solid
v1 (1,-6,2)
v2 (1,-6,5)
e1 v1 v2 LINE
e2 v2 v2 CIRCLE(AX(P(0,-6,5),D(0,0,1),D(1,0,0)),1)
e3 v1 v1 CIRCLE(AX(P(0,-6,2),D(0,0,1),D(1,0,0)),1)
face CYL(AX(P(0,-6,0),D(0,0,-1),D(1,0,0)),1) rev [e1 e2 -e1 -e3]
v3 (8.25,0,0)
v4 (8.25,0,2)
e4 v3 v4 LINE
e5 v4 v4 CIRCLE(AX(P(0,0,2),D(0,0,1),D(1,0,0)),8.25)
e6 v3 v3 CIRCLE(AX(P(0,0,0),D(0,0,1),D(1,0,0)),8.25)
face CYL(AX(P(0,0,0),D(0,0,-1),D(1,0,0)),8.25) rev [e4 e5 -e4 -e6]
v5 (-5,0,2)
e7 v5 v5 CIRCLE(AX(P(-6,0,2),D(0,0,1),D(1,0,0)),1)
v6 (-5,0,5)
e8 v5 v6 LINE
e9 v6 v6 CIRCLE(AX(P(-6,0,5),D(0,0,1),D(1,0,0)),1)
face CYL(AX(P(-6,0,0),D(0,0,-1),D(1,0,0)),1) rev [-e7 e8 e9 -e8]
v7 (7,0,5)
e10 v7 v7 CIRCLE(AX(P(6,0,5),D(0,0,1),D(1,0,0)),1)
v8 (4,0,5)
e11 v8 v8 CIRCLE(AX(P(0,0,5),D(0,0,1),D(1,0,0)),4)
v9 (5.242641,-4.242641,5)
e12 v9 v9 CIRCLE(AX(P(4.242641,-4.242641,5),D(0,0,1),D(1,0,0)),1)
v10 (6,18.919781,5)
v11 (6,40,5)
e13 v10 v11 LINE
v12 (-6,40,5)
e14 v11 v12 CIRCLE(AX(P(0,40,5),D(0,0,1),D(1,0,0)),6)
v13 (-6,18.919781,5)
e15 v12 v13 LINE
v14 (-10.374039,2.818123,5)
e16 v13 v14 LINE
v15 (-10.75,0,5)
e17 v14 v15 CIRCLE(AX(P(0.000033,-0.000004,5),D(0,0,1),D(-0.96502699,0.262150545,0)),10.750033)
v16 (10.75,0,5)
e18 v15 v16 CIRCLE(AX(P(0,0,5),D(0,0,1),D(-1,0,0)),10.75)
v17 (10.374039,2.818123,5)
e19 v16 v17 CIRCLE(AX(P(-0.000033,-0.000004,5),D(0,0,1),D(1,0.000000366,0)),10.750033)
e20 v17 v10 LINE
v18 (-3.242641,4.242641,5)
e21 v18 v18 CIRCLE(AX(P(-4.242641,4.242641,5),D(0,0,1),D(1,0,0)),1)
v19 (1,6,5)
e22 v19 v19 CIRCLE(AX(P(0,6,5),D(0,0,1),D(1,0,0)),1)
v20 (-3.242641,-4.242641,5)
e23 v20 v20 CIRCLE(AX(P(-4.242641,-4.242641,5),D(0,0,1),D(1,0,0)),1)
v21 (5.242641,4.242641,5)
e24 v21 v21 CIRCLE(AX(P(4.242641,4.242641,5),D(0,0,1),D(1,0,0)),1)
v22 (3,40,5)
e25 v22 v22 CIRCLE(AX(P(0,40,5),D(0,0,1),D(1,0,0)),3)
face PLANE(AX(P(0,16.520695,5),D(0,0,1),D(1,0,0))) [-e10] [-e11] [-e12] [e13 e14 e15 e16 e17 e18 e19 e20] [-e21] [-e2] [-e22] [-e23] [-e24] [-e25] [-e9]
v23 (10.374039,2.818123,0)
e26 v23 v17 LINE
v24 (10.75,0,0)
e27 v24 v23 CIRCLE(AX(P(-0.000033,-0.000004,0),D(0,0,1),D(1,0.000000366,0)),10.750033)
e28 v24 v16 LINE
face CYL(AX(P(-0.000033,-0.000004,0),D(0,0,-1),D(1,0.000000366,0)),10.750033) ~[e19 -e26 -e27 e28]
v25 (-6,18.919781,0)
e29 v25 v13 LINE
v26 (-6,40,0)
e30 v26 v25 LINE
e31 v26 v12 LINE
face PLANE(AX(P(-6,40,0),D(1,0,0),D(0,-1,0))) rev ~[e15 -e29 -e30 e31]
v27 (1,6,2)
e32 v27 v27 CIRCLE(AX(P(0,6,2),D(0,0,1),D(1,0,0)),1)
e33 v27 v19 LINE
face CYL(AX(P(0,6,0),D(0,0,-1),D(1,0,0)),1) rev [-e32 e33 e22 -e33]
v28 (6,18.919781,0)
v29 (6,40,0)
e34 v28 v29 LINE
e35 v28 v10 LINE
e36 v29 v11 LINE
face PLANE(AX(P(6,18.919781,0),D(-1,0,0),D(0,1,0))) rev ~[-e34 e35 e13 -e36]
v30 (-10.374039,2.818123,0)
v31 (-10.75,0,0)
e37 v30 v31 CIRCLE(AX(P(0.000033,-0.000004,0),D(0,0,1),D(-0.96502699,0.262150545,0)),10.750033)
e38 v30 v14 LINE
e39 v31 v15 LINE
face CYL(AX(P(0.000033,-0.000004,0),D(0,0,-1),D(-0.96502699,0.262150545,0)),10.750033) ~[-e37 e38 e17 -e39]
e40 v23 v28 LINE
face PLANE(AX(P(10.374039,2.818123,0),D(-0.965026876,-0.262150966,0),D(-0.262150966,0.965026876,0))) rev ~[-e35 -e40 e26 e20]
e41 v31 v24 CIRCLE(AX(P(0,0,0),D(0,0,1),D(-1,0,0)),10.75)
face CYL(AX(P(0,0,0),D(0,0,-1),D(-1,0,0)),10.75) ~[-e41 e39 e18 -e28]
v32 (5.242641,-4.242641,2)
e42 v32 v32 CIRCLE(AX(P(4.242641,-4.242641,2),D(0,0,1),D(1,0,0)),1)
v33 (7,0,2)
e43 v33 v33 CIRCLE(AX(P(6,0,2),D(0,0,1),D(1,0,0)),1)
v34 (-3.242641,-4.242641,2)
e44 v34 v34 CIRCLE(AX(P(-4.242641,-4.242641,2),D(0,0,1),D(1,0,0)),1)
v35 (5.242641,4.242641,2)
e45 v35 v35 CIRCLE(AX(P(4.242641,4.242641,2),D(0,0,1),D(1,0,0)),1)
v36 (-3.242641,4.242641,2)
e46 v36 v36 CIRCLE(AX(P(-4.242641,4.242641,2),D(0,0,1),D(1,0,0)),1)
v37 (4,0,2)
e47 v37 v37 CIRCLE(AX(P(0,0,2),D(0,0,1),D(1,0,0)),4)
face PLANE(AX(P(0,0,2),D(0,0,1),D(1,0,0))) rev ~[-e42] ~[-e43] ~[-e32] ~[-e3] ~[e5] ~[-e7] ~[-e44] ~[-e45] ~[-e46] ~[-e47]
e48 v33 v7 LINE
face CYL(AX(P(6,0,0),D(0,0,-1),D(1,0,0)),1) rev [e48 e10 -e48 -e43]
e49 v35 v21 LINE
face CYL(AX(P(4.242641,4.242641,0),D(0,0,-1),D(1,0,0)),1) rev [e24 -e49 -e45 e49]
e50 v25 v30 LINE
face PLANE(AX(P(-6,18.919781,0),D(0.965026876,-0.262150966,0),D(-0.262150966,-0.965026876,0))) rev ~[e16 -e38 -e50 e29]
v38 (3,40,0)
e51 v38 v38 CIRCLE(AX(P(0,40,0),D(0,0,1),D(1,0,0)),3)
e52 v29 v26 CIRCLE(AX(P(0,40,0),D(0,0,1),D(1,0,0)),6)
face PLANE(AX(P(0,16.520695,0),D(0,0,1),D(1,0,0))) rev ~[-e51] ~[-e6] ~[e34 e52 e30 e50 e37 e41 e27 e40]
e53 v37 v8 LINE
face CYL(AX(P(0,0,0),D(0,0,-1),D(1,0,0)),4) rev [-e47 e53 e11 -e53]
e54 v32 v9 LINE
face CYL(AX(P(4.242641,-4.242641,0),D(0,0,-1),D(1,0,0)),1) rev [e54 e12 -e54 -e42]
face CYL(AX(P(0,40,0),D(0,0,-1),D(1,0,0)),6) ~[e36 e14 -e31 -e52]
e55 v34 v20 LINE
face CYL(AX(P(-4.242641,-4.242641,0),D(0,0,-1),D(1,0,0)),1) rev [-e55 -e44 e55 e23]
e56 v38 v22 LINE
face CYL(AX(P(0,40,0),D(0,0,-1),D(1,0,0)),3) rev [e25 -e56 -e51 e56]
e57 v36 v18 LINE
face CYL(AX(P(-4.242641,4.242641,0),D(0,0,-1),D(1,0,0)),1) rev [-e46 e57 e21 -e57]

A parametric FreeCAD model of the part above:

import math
import FreeCAD as App
import Part
import Sketcher

doc = App.newDocument("Part")
body = doc.addObject("PartDesign::Body", "Body")

# Sketch on XY plane
sketch1 = body.newObject("Sketcher::SketchObject", "Sketch")
sketch1.AttachmentSupport = (doc.getObject("XY_Plane"), [""])
sketch1.MapMode = "FlatFace"
sketch1.addGeometry(Part.LineSegment(App.Vector(-6, 40, 0), App.Vector(-6, 18.919781, 0)), False)
sketch1.addGeometry(Part.LineSegment(App.Vector(-6, 18.919781, 0), App.Vector(-10.374039, 2.818123, 0)), False)
sketch1.addGeometry(Part.ArcOfCircle(Part.Circle(App.Vector(0.000033, -0.000004, 0), App.Vector(0, 0, 1), 10.750033), math.radians(164.802294), math.radians(179.999979)), False)
sketch1.addGeometry(Part.ArcOfCircle(Part.Circle(App.Vector(0, 0, 0), App.Vector(0, 0, 1), 10.75), math.radians(180), math.radians(360)), False)
sketch1.addGeometry(Part.ArcOfCircle(Part.Circle(App.Vector(-0.000033, -0.000004, 0), App.Vector(0, 0, 1), 10.750033), math.radians(0.000021), math.radians(15.197706)), False)
sketch1.addGeometry(Part.LineSegment(App.Vector(10.374039, 2.818123, 0), App.Vector(6, 18.919781, 0)), False)
sketch1.addGeometry(Part.LineSegment(App.Vector(6, 18.919781, 0), App.Vector(6, 40, 0)), False)
sketch1.addGeometry(Part.ArcOfCircle(Part.Circle(App.Vector(0, 40, 0), App.Vector(0, 0, 1), 6), math.radians(0), math.radians(180)), False)
sketch1.addGeometry(Part.Circle(App.Vector(-4.242641, -4.242641, 0), App.Vector(0, 0, 1), 1), False)
sketch1.addGeometry(Part.Circle(App.Vector(-6, 0, 0), App.Vector(0, 0, 1), 1), False)
sketch1.addGeometry(Part.Circle(App.Vector(-4.242641, 4.242641, 0), App.Vector(0, 0, 1), 1), False)
sketch1.addGeometry(Part.Circle(App.Vector(0, -6, 0), App.Vector(0, 0, 1), 1), False)
sketch1.addGeometry(Part.Circle(App.Vector(0, 0, 0), App.Vector(0, 0, 1), 4), False)
sketch1.addGeometry(Part.Circle(App.Vector(4.242641, -4.242641, 0), App.Vector(0, 0, 1), 1), False)
sketch1.addGeometry(Part.Circle(App.Vector(4.242641, 4.242641, 0), App.Vector(0, 0, 1), 1), False)
sketch1.addGeometry(Part.Circle(App.Vector(6, 0, 0), App.Vector(0, 0, 1), 1), False)
sketch1.addGeometry(Part.Circle(App.Vector(0, 6, 0), App.Vector(0, 0, 1), 1), False)
sketch1.addGeometry(Part.Circle(App.Vector(0, 40, 0), App.Vector(0, 0, 1), 3), False)
sketch1.addConstraint(Sketcher.Constraint("Coincident", 0, 2, 1, 1))
sketch1.addConstraint(Sketcher.Constraint("Tangent", 1, 2, 2, 1))
sketch1.addConstraint(Sketcher.Constraint("Tangent", 2, 2, 3, 1))
sketch1.addConstraint(Sketcher.Constraint("Tangent", 3, 2, 4, 1))
sketch1.addConstraint(Sketcher.Constraint("Tangent", 4, 2, 5, 1))
sketch1.addConstraint(Sketcher.Constraint("Coincident", 5, 2, 6, 1))
sketch1.addConstraint(Sketcher.Constraint("Tangent", 6, 2, 7, 1))
sketch1.addConstraint(Sketcher.Constraint("Tangent", 7, 2, 0, 1))
sketch1.addConstraint(Sketcher.Constraint("Vertical", 0))
sketch1.addConstraint(Sketcher.Constraint("Vertical", 6))
sketch1.addConstraint(Sketcher.Constraint("Coincident", 3, 3, -1, 1))
sketch1.addConstraint(Sketcher.Constraint("Coincident", 12, 3, -1, 1))
sketch1.addConstraint(Sketcher.Constraint("Coincident", 17, 3, 7, 3))
sketch1.addConstraint(Sketcher.Constraint("Equal", 2, 4))
sketch1.addConstraint(Sketcher.Constraint("Equal", 8, 9))
sketch1.addConstraint(Sketcher.Constraint("Equal", 9, 10))
sketch1.addConstraint(Sketcher.Constraint("Equal", 10, 11))
sketch1.addConstraint(Sketcher.Constraint("Equal", 11, 13))
sketch1.addConstraint(Sketcher.Constraint("Equal", 13, 14))
sketch1.addConstraint(Sketcher.Constraint("Equal", 14, 15))
sketch1.addConstraint(Sketcher.Constraint("Equal", 15, 16))
sketch1.addConstraint(Sketcher.Constraint("Symmetric", 10, 3, 13, 3, -1, 1))
sketch1.addConstraint(Sketcher.Constraint("Symmetric", 8, 3, 14, 3, -1, 1))
sketch1.addConstraint(Sketcher.Constraint("Symmetric", 9, 3, 15, 3, -1, 1))
sketch1.addConstraint(Sketcher.Constraint("Symmetric", 11, 3, 16, 3, -1, 1))
sketch1.addConstraint(Sketcher.Constraint("Symmetric", 8, 3, 13, 3, -2))
sketch1.addConstraint(Sketcher.Constraint("Symmetric", 0, 2, 5, 2, -2))
sketch1.addConstraint(Sketcher.Constraint("PointOnObject", 9, 3, -1))
sketch1.addConstraint(Sketcher.Constraint("PointOnObject", 11, 3, -2))
sketch1.addConstraint(Sketcher.Constraint("PointOnObject", 2, 2, -1))
sketch1.addConstraint(Sketcher.Constraint("PointOnObject", 3, 2, -1))
sketch1.addConstraint(Sketcher.Constraint("Vertical", 9, 3, 0, 2))
sketch1.addConstraint(Sketcher.Constraint("Diameter", 8, 2.0))
sketch1.addConstraint(Sketcher.Constraint("Diameter", 12, 8.0))
sketch1.addConstraint(Sketcher.Constraint("Diameter", 17, 6.0))
sketch1.addConstraint(Sketcher.Constraint("Radius", 7, 6.0))
sketch1.addConstraint(Sketcher.Constraint("Radius", 3, 10.75))
sketch1.addConstraint(Sketcher.Constraint("DistanceY", -1, 1, 7, 3, 40.0))
sketch1.addConstraint(Sketcher.Constraint("DistanceY", 11, 3, -1, 1, 6.0))
sketch1.addConstraint(Sketcher.Constraint("Radius", 2, 10.750033))
sketch1.addConstraint(Sketcher.Constraint("DistanceY", 0, 2, 0, 1, 21.080219))
sketch1.addConstraint(Sketcher.Constraint("DistanceX", 14, 3, 4, 2, 6.131398))
sketch1.addConstraint(Sketcher.Constraint("DistanceY", 8, 3, -1, 1, 4.242641))
pad1 = body.newObject("PartDesign::Pad", "Pad")
pad1.Profile = sketch1
pad1.Length = 5

# Sketch on XY plane
sketch2 = body.newObject("Sketcher::SketchObject", "Sketch001")
sketch2.AttachmentSupport = (doc.getObject("XY_Plane"), [""])
sketch2.MapMode = "FlatFace"
sketch2.addGeometry(Part.Circle(App.Vector(0, 0, 0), App.Vector(0, 0, 1), 8.25), False)
sketch2.addGeometry(Part.Circle(App.Vector(-4.242641, -4.242641, 0), App.Vector(0, 0, 1), 1), False)
sketch2.addGeometry(Part.Circle(App.Vector(0, -6, 0), App.Vector(0, 0, 1), 1), False)
sketch2.addGeometry(Part.Circle(App.Vector(4.242641, -4.242641, 0), App.Vector(0, 0, 1), 1), False)
sketch2.addGeometry(Part.Circle(App.Vector(-6, 0, 0), App.Vector(0, 0, 1), 1), False)
sketch2.addGeometry(Part.Circle(App.Vector(-4.242641, 4.242641, 0), App.Vector(0, 0, 1), 1), False)
sketch2.addGeometry(Part.Circle(App.Vector(0, 0, 0), App.Vector(0, 0, 1), 4), False)
sketch2.addGeometry(Part.Circle(App.Vector(6, 0, 0), App.Vector(0, 0, 1), 1), False)
sketch2.addGeometry(Part.Circle(App.Vector(0, 6, 0), App.Vector(0, 0, 1), 1), False)
sketch2.addGeometry(Part.Circle(App.Vector(4.242641, 4.242641, 0), App.Vector(0, 0, 1), 1), False)
sketch2.addConstraint(Sketcher.Constraint("Coincident", 0, 3, -1, 1))
sketch2.addConstraint(Sketcher.Constraint("Coincident", 6, 3, -1, 1))
sketch2.addConstraint(Sketcher.Constraint("Equal", 1, 2))
sketch2.addConstraint(Sketcher.Constraint("Equal", 2, 3))
sketch2.addConstraint(Sketcher.Constraint("Equal", 3, 4))
sketch2.addConstraint(Sketcher.Constraint("Equal", 4, 5))
sketch2.addConstraint(Sketcher.Constraint("Equal", 5, 7))
sketch2.addConstraint(Sketcher.Constraint("Equal", 7, 8))
sketch2.addConstraint(Sketcher.Constraint("Equal", 8, 9))
sketch2.addConstraint(Sketcher.Constraint("Symmetric", 3, 3, 5, 3, -1, 1))
sketch2.addConstraint(Sketcher.Constraint("Symmetric", 4, 3, 7, 3, -1, 1))
sketch2.addConstraint(Sketcher.Constraint("Symmetric", 2, 3, 8, 3, -1, 1))
sketch2.addConstraint(Sketcher.Constraint("Symmetric", 1, 3, 9, 3, -1, 1))
sketch2.addConstraint(Sketcher.Constraint("Symmetric", 1, 3, 3, 3, -2))
sketch2.addConstraint(Sketcher.Constraint("PointOnObject", 2, 3, -2))
sketch2.addConstraint(Sketcher.Constraint("PointOnObject", 4, 3, -1))
sketch2.addConstraint(Sketcher.Constraint("Diameter", 1, 2.0))
sketch2.addConstraint(Sketcher.Constraint("Diameter", 6, 8.0))
sketch2.addConstraint(Sketcher.Constraint("Diameter", 0, 16.5))
sketch2.addConstraint(Sketcher.Constraint("DistanceY", 2, 3, -1, 1, 6.0))
sketch2.addConstraint(Sketcher.Constraint("DistanceX", 4, 3, -1, 1, 6.0))
sketch2.addConstraint(Sketcher.Constraint("DistanceX", 1, 3, -1, 1, 4.242641))
sketch2.addConstraint(Sketcher.Constraint("DistanceY", 1, 3, -1, 1, 4.242641))
pocket1 = body.newObject("PartDesign::Pocket", "Pocket")
pocket1.Profile = sketch2
pocket1.Length = 2
pocket1.Reversed = True

doc.recompute()
